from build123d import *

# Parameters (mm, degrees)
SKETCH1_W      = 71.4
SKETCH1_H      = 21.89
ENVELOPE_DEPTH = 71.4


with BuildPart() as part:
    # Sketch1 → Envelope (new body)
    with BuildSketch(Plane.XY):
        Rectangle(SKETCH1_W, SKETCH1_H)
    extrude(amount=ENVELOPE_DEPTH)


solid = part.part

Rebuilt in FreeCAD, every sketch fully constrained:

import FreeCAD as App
import Part
import Sketcher
from FreeCAD import Vector

doc = App.newDocument("Part")
body = doc.addObject("PartDesign::Body", "Body")

# Sketch on XY plane
sketch1 = body.newObject("Sketcher::SketchObject", "Sketch")
sketch1.AttachmentSupport = (doc.getObject("XY_Plane"), [""])
sketch1.MapMode = "FlatFace"
sketch1.addGeometry([
    Part.LineSegment(Vector(-36, 11, 0), Vector(-36, -11, 0)),
    Part.LineSegment(Vector(-36, -11, 0), Vector(36, -11, 0)),
    Part.LineSegment(Vector(36, -11, 0), Vector(36, 11, 0)),
    Part.LineSegment(Vector(36, 11, 0), Vector(-36, 11, 0)),
], False)
sketch1.addConstraint([
    Sketcher.Constraint("Coincident", 0, 2, 1, 1),
    Sketcher.Constraint("Coincident", 1, 2, 2, 1),
    Sketcher.Constraint("Coincident", 2, 2, 3, 1),
    Sketcher.Constraint("Coincident", 3, 2, 0, 1),
    Sketcher.Constraint("Vertical", 0),
    Sketcher.Constraint("Horizontal", 1),
    Sketcher.Constraint("Vertical", 2),
    Sketcher.Constraint("Horizontal", 3),
    Sketcher.Constraint("Symmetric", 0, 2, 2, 2, -1, 1),
    Sketcher.Constraint("DistanceX", 1, 1, 1, 2, 71.4),
    Sketcher.Constraint("DistanceY", 0, 2, 0, 1, 21.89),
])
pad1 = body.newObject("PartDesign::Pad", "Pad")
pad1.Profile = sketch1
pad1.Length = 71.4

doc.recompute()
